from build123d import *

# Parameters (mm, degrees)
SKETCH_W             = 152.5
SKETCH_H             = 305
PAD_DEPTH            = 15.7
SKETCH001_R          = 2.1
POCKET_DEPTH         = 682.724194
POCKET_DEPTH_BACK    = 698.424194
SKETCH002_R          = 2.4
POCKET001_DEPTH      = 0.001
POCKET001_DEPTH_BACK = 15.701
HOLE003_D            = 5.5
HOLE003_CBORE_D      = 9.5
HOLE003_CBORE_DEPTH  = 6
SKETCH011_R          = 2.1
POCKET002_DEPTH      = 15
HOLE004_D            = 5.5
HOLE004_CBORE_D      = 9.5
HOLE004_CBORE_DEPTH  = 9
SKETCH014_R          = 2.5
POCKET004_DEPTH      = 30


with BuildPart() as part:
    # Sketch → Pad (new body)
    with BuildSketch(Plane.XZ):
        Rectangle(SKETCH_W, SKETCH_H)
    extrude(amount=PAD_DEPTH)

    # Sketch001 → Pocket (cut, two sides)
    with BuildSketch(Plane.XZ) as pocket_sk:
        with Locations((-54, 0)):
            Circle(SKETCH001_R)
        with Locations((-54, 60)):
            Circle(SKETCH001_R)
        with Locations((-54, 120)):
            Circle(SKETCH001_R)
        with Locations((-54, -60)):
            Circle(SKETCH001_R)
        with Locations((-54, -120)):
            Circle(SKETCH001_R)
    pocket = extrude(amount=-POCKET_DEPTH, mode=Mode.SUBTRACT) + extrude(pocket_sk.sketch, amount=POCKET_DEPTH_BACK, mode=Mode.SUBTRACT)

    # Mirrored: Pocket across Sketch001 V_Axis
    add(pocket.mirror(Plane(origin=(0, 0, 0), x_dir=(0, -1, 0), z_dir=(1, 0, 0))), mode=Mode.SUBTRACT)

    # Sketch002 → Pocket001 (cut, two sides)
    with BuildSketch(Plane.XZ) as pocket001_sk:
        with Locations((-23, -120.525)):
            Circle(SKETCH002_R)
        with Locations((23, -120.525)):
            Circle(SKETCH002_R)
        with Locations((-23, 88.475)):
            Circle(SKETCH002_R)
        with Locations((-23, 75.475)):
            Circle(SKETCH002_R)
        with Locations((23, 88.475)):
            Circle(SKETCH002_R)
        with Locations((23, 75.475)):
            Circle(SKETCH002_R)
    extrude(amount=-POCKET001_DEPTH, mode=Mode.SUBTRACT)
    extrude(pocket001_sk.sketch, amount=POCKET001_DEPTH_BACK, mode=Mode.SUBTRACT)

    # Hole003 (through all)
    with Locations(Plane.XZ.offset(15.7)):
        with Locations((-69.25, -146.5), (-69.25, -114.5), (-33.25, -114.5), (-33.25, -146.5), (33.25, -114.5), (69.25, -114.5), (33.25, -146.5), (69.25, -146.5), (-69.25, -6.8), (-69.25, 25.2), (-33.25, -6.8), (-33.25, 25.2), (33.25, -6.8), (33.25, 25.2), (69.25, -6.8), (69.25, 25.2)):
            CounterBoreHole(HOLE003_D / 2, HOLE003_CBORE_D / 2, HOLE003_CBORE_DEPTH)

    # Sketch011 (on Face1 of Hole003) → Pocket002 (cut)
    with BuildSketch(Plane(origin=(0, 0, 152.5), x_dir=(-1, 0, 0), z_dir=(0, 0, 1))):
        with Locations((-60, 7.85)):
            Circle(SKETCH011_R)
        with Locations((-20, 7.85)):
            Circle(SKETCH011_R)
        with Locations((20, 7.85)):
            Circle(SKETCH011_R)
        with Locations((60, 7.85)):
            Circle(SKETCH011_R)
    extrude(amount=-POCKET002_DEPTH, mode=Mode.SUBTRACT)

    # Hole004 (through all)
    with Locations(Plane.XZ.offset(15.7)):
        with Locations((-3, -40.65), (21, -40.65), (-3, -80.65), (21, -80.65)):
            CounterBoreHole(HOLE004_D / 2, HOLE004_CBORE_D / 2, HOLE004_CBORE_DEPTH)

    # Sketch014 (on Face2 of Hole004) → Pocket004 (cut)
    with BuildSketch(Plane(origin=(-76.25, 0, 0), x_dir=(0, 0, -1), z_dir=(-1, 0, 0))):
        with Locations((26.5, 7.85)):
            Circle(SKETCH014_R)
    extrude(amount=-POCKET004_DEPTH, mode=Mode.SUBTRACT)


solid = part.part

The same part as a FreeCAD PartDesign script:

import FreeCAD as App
import Part
import Sketcher

V = App.Vector
Q = App.Units.Quantity

doc = App.newDocument("Part")
body = doc.addObject("PartDesign::Body", "Body")

# Sketch on XZ plane
sketch1 = body.newObject("Sketcher::SketchObject", "Sketch")
sketch1.AttachmentSupport = (doc.getObject("XZ_Plane"), [""])
sketch1.MapMode = "FlatFace"
sketch1.addGeometry([
    Part.LineSegment(V(-76, 152, 0), V(-76, -152, 0)),
    Part.LineSegment(V(-76, -152, 0), V(76, -152, 0)),
    Part.LineSegment(V(76, -152, 0), V(76, 152, 0)),
    Part.LineSegment(V(76, 152, 0), V(-76, 152, 0)),
], False)
sketch1.addConstraint([
    Sketcher.Constraint("Coincident", 0, 2, 1, 1),
    Sketcher.Constraint("Coincident", 1, 2, 2, 1),
    Sketcher.Constraint("Coincident", 2, 2, 3, 1),
    Sketcher.Constraint("Coincident", 3, 2, 0, 1),
    Sketcher.Constraint("Vertical", 0),
    Sketcher.Constraint("Horizontal", 1),
    Sketcher.Constraint("Vertical", 2),
    Sketcher.Constraint("Horizontal", 3),
    Sketcher.Constraint("Symmetric", 0, 2, 2, 2, -1, 1),
    Sketcher.Constraint("DistanceY", 0, 2, 0, 1, Q("305 mm")),
    Sketcher.Constraint("DistanceX", 1, 1, 1, 2, Q("152.5 mm")),
])
pad1 = body.newObject("PartDesign::Pad", "Pad")
pad1.Profile = sketch1
pad1.Length = 15.7

# Sketch on XZ plane
sketch2 = body.newObject("Sketcher::SketchObject", "Sketch001")
sketch2.AttachmentSupport = (doc.getObject("XZ_Plane"), [""])
sketch2.MapMode = "FlatFace"
sketch2.addGeometry([
    Part.Circle(V(-54, 0, 0), V(0, 0, 1), 2.1),  # 0
    Part.Circle(V(-54, 60, 0), V(0, 0, 1), 2.1),  # 1
    Part.Circle(V(-54, 120, 0), V(0, 0, 1), 2.1),  # 2
    Part.Circle(V(-54, -60, 0), V(0, 0, 1), 2.1),  # 3
    Part.Circle(V(-54, -120, 0), V(0, 0, 1), 2.1),  # 4
], False)
sketch2.addConstraint([
    Sketcher.Constraint("Equal", 0, 1),
    Sketcher.Constraint("Equal", 1, 2),
    Sketcher.Constraint("Equal", 2, 3),
    Sketcher.Constraint("Equal", 3, 4),
    Sketcher.Constraint("Symmetric", 1, 3, 3, 3, -1),
    Sketcher.Constraint("Symmetric", 2, 3, 4, 3, -1),
    Sketcher.Constraint("PointOnObject", 0, 3, -1),
    Sketcher.Constraint("Vertical", 0, 3, 1, 3),
    Sketcher.Constraint("Vertical", 1, 3, 2, 3),
    Sketcher.Constraint("Diameter", 0, Q("4.2 mm")),
    Sketcher.Constraint("DistanceX", 0, 3, -1, 1, Q("54 mm")),
    Sketcher.Constraint("DistanceY", -1, 1, 1, 3, Q("60 mm")),
    Sketcher.Constraint("DistanceY", -1, 1, 2, 3, Q("120 mm")),
])
pocket1 = body.newObject("PartDesign::Pocket", "Pocket")
pocket1.Profile = sketch2
pocket1.Type = "ThroughAll"
pocket1.Midplane = True
doc.recompute()

mirrored = body.newObject("PartDesign::Mirrored", "Mirrored")
mirrored.Originals = [pocket1]
mirrored.MirrorPlane = (doc.getObject("YZ_Plane"), [""])
body.Tip = mirrored

# Sketch on XZ plane
sketch3 = body.newObject("Sketcher::SketchObject", "Sketch002")
sketch3.AttachmentSupport = (doc.getObject("XZ_Plane"), [""])
sketch3.MapMode = "FlatFace"
sketch3.addGeometry([
    Part.Circle(V(-23, -120.5, 0), V(0, 0, 1), 2.4),  # 0
    Part.Circle(V(23, -120.5, 0), V(0, 0, 1), 2.4),  # 1
    Part.Circle(V(-23, 88.5, 0), V(0, 0, 1), 2.4),  # 2
    Part.Circle(V(-23, 75.5, 0), V(0, 0, 1), 2.4),  # 3
    Part.Circle(V(23, 88.5, 0), V(0, 0, 1), 2.4),  # 4
    Part.Circle(V(23, 75.5, 0), V(0, 0, 1), 2.4),  # 5
], False)
sketch3.addConstraint([
    Sketcher.Constraint("Equal", 0, 1),
    Sketcher.Constraint("Equal", 1, 2),
    Sketcher.Constraint("Equal", 2, 3),
    Sketcher.Constraint("Equal", 3, 4),
    Sketcher.Constraint("Equal", 4, 5),
    Sketcher.Constraint("Symmetric", 0, 3, 1, 3, -2),
    Sketcher.Constraint("Symmetric", 2, 3, 4, 3, -2),
    Sketcher.Constraint("Symmetric", 3, 3, 5, 3, -2),
    Sketcher.Constraint("Vertical", 0, 3, 2, 3),
    Sketcher.Constraint("Vertical", 2, 3, 3, 3),
    Sketcher.Constraint("Diameter", 0, Q("4.8 mm")),
    Sketcher.Constraint("DistanceX", 0, 3, -1, 1, Q("23 mm")),
    Sketcher.Constraint("DistanceY", 0, 3, 2, 3, Q("209 mm")),
    Sketcher.Constraint("DistanceY", 3, 3, 2, 3, Q("13 mm")),
    Sketcher.Constraint("DistanceY", 0, 3, -1, 1, Q("120.525 mm")),
])
pocket2 = body.newObject("PartDesign::Pocket", "Pocket001")
pocket2.Profile = sketch3
pocket2.Type = "ThroughAll"
pocket2.Midplane = True

# Sketch on XZ plane
sketch4 = body.newObject("Sketcher::SketchObject", "Sketch003")
sketch4.AttachmentSupport = (doc.getObject("XZ_Plane"), [""])
sketch4.MapMode = "FlatFace"
sketch4.AttachmentOffset = App.Placement(V(0, 0, 15.7), App.Rotation())
sketch4.addGeometry([
    Part.Circle(V(-69.2, -146.5, 0), V(0, 0, 1), 2.8),  # 0
    Part.Circle(V(-69.2, -114.5, 0), V(0, 0, 1), 2.8),  # 1
    Part.Circle(V(-33.2, -114.5, 0), V(0, 0, 1), 2.8),  # 2
    Part.Circle(V(-33.2, -146.5, 0), V(0, 0, 1), 2.8),  # 3
    Part.Circle(V(33.2, -114.5, 0), V(0, 0, 1), 2.8),  # 4
    Part.Circle(V(69.2, -114.5, 0), V(0, 0, 1), 2.8),  # 5
    Part.Circle(V(33.2, -146.5, 0), V(0, 0, 1), 2.8),  # 6
    Part.Circle(V(69.2, -146.5, 0), V(0, 0, 1), 2.8),  # 7
    Part.Circle(V(-69.2, -6.8, 0), V(0, 0, 1), 2.8),  # 8
    Part.Circle(V(-69.2, 25.2, 0), V(0, 0, 1), 2.8),  # 9
    Part.Circle(V(-33.2, -6.8, 0), V(0, 0, 1), 2.8),  # 10
    Part.Circle(V(-33.2, 25.2, 0), V(0, 0, 1), 2.8),  # 11
    Part.Circle(V(33.2, -6.8, 0), V(0, 0, 1), 2.8),  # 12
    Part.Circle(V(33.2, 25.2, 0), V(0, 0, 1), 2.8),  # 13
    Part.Circle(V(69.2, -6.8, 0), V(0, 0, 1), 2.8),  # 14
    Part.Circle(V(69.2, 25.2, 0), V(0, 0, 1), 2.8),  # 15
], False)
sketch4.addConstraint([
    Sketcher.Constraint("Equal", 0, 1),
    Sketcher.Constraint("Equal", 1, 2),
    Sketcher.Constraint("Equal", 2, 3),
    Sketcher.Constraint("Equal", 3, 4),
    Sketcher.Constraint("Equal", 4, 5),
    Sketcher.Constraint("Equal", 5, 6),
    Sketcher.Constraint("Equal", 6, 7),
    Sketcher.Constraint("Equal", 7, 8),
    Sketcher.Constraint("Equal", 8, 9),
    Sketcher.Constraint("Equal", 9, 10),
    Sketcher.Constraint("Equal", 10, 11),
    Sketcher.Constraint("Equal", 11, 12),
    Sketcher.Constraint("Equal", 12, 13),
    Sketcher.Constraint("Equal", 13, 14),
    Sketcher.Constraint("Equal", 14, 15),
    Sketcher.Constraint("Symmetric", 2, 3, 4, 3, -2),
    Sketcher.Constraint("Symmetric", 1, 3, 5, 3, -2),
    Sketcher.Constraint("Symmetric", 3, 3, 6, 3, -2),
    Sketcher.Constraint("Symmetric", 0, 3, 7, 3, -2),
    Sketcher.Constraint("Symmetric", 10, 3, 12, 3, -2),
    Sketcher.Constraint("Symmetric", 11, 3, 13, 3, -2),
    Sketcher.Constraint("Symmetric", 8, 3, 14, 3, -2),
    Sketcher.Constraint("Symmetric", 9, 3, 15, 3, -2),
    Sketcher.Constraint("Horizontal", 1, 3, 2, 3),
    Sketcher.Constraint("Horizontal", 0, 3, 3, 3),
    Sketcher.Constraint("Horizontal", 8, 3, 10, 3),
    Sketcher.Constraint("Horizontal", 9, 3, 11, 3),
    Sketcher.Constraint("Vertical", 0, 3, 1, 3),
    Sketcher.Constraint("Vertical", 2, 3, 3, 3),
    Sketcher.Constraint("Vertical", 1, 3, 8, 3),
    Sketcher.Constraint("Vertical", 8, 3, 9, 3),
    Sketcher.Constraint("Vertical", 3, 3, 10, 3),
    Sketcher.Constraint("Vertical", 10, 3, 11, 3),
    Sketcher.Constraint("Diameter", 0, Q("5.5 mm")),
    Sketcher.Constraint("DistanceY", 0, 3, 1, 3, Q("32 mm")),
    Sketcher.Constraint("DistanceX", 1, 3, 2, 3, Q("36 mm")),
    Sketcher.Constraint("DistanceY", 8, 3, 9, 3, Q("32 mm")),
    Sketcher.Constraint("DistanceY", 0, 3, -1, 1, Q("146.5 mm")),
    Sketcher.Constraint("DistanceY", 8, 3, -1, 1, Q("6.8 mm")),
    Sketcher.Constraint("DistanceX", 2, 3, 4, 3, Q("66.5 mm")),
])
doc.recompute()
hole = body.newObject("PartDesign::Hole", "Hole")
hole.Profile = sketch4
hole.ThreadType = "None"
hole.Diameter = 5.5
hole.DepthType = "ThroughAll"
hole.HoleCutType = "Counterbore"
hole.HoleCutDiameter = 9.5
hole.HoleCutDepth = 6

# Sketch on XY plane
sketch5 = body.newObject("Sketcher::SketchObject", "Sketch004")
sketch5.AttachmentSupport = (doc.getObject("XY_Plane"), [""])
sketch5.MapMode = "FlatFace"
sketch5.AttachmentOffset = App.Placement(V(0, 0, 152.5), App.Rotation())
sketch5.addGeometry([
    Part.Circle(V(60, -7.8, 0), V(0, 0, 1), 2.1),
    Part.Circle(V(20, -7.8, 0), V(0, 0, 1), 2.1),
    Part.Circle(V(-20, -7.8, 0), V(0, 0, 1), 2.1),
    Part.Circle(V(-60, -7.8, 0), V(0, 0, 1), 2.1),
], False)
sketch5.addConstraint([
    Sketcher.Constraint("Equal", 0, 1),
    Sketcher.Constraint("Equal", 1, 2),
    Sketcher.Constraint("Equal", 2, 3),
    Sketcher.Constraint("Symmetric", 1, 3, 2, 3, -2),
    Sketcher.Constraint("Symmetric", 0, 3, 3, 3, -2),
    Sketcher.Constraint("Horizontal", 0, 3, 1, 3),
    Sketcher.Constraint("Diameter", 0, Q("4.2 mm")),
    Sketcher.Constraint("DistanceX", -1, 1, 0, 3, Q("60 mm")),
    Sketcher.Constraint("DistanceX", -1, 1, 1, 3, Q("20 mm")),
    Sketcher.Constraint("DistanceY", 0, 3, -1, 1, Q("7.85 mm")),
])
pocket3 = body.newObject("PartDesign::Pocket", "Pocket002")
pocket3.Profile = sketch5
pocket3.Length = 15

# Sketch on XZ plane
sketch6 = body.newObject("Sketcher::SketchObject", "Sketch005")
sketch6.AttachmentSupport = (doc.getObject("XZ_Plane"), [""])
sketch6.MapMode = "FlatFace"
sketch6.AttachmentOffset = App.Placement(V(0, 0, 15.7), App.Rotation())
sketch6.addGeometry([
    Part.Circle(V(-3, -40.6, 0), V(0, 0, 1), 2.8),
    Part.Circle(V(21, -40.6, 0), V(0, 0, 1), 2.8),
    Part.Circle(V(-3, -80.7, 0), V(0, 0, 1), 2.8),
    Part.Circle(V(21, -80.7, 0), V(0, 0, 1), 2.8),
], False)
sketch6.addConstraint([
    Sketcher.Constraint("Equal", 0, 1),
    Sketcher.Constraint("Equal", 1, 2),
    Sketcher.Constraint("Equal", 2, 3),
    Sketcher.Constraint("Horizontal", 0, 3, 1, 3),
    Sketcher.Constraint("Horizontal", 2, 3, 3, 3),
    Sketcher.Constraint("Vertical", 0, 3, 2, 3),
    Sketcher.Constraint("Vertical", 1, 3, 3, 3),
    Sketcher.Constraint("Diameter", 0, Q("5.5 mm")),
    Sketcher.Constraint("DistanceX", 0, 3, -1, 1, Q("3 mm")),
    Sketcher.Constraint("DistanceX", -1, 1, 1, 3, Q("21 mm")),
    Sketcher.Constraint("DistanceY", 2, 3, 0, 3, Q("40 mm")),
    Sketcher.Constraint("DistanceY", 0, 3, -1, 1, Q("40.65 mm")),
])
doc.recompute()
hole2 = body.newObject("PartDesign::Hole", "Hole001")
hole2.Profile = sketch6
hole2.ThreadType = "None"
hole2.Diameter = 5.5
hole2.DepthType = "ThroughAll"
hole2.HoleCutType = "Counterbore"
hole2.HoleCutDiameter = 9.5
hole2.HoleCutDepth = 9

# Sketch on YZ plane
sketch7 = body.newObject("Sketcher::SketchObject", "Sketch006")
sketch7.AttachmentSupport = (doc.getObject("YZ_Plane"), [""])
sketch7.MapMode = "FlatFace"
sketch7.AttachmentOffset = App.Placement(V(0, 0, -76.25), App.Rotation())
sketch7.addGeometry(Part.Circle(V(-7.8, -26.5, 0), V(0, 0, 1), 2.5), False)
sketch7.addConstraint([
    Sketcher.Constraint("Diameter", 0, Q("5 mm")),
    Sketcher.Constraint("DistanceY", 0, 3, -1, 1, Q("26.5 mm")),
    Sketcher.Constraint("DistanceX", 0, 3, -1, 1, Q("7.85 mm")),
])
pocket4 = body.newObject("PartDesign::Pocket", "Pocket003")
pocket4.Profile = sketch7
pocket4.Length = 30
pocket4.Reversed = True

doc.recompute()
